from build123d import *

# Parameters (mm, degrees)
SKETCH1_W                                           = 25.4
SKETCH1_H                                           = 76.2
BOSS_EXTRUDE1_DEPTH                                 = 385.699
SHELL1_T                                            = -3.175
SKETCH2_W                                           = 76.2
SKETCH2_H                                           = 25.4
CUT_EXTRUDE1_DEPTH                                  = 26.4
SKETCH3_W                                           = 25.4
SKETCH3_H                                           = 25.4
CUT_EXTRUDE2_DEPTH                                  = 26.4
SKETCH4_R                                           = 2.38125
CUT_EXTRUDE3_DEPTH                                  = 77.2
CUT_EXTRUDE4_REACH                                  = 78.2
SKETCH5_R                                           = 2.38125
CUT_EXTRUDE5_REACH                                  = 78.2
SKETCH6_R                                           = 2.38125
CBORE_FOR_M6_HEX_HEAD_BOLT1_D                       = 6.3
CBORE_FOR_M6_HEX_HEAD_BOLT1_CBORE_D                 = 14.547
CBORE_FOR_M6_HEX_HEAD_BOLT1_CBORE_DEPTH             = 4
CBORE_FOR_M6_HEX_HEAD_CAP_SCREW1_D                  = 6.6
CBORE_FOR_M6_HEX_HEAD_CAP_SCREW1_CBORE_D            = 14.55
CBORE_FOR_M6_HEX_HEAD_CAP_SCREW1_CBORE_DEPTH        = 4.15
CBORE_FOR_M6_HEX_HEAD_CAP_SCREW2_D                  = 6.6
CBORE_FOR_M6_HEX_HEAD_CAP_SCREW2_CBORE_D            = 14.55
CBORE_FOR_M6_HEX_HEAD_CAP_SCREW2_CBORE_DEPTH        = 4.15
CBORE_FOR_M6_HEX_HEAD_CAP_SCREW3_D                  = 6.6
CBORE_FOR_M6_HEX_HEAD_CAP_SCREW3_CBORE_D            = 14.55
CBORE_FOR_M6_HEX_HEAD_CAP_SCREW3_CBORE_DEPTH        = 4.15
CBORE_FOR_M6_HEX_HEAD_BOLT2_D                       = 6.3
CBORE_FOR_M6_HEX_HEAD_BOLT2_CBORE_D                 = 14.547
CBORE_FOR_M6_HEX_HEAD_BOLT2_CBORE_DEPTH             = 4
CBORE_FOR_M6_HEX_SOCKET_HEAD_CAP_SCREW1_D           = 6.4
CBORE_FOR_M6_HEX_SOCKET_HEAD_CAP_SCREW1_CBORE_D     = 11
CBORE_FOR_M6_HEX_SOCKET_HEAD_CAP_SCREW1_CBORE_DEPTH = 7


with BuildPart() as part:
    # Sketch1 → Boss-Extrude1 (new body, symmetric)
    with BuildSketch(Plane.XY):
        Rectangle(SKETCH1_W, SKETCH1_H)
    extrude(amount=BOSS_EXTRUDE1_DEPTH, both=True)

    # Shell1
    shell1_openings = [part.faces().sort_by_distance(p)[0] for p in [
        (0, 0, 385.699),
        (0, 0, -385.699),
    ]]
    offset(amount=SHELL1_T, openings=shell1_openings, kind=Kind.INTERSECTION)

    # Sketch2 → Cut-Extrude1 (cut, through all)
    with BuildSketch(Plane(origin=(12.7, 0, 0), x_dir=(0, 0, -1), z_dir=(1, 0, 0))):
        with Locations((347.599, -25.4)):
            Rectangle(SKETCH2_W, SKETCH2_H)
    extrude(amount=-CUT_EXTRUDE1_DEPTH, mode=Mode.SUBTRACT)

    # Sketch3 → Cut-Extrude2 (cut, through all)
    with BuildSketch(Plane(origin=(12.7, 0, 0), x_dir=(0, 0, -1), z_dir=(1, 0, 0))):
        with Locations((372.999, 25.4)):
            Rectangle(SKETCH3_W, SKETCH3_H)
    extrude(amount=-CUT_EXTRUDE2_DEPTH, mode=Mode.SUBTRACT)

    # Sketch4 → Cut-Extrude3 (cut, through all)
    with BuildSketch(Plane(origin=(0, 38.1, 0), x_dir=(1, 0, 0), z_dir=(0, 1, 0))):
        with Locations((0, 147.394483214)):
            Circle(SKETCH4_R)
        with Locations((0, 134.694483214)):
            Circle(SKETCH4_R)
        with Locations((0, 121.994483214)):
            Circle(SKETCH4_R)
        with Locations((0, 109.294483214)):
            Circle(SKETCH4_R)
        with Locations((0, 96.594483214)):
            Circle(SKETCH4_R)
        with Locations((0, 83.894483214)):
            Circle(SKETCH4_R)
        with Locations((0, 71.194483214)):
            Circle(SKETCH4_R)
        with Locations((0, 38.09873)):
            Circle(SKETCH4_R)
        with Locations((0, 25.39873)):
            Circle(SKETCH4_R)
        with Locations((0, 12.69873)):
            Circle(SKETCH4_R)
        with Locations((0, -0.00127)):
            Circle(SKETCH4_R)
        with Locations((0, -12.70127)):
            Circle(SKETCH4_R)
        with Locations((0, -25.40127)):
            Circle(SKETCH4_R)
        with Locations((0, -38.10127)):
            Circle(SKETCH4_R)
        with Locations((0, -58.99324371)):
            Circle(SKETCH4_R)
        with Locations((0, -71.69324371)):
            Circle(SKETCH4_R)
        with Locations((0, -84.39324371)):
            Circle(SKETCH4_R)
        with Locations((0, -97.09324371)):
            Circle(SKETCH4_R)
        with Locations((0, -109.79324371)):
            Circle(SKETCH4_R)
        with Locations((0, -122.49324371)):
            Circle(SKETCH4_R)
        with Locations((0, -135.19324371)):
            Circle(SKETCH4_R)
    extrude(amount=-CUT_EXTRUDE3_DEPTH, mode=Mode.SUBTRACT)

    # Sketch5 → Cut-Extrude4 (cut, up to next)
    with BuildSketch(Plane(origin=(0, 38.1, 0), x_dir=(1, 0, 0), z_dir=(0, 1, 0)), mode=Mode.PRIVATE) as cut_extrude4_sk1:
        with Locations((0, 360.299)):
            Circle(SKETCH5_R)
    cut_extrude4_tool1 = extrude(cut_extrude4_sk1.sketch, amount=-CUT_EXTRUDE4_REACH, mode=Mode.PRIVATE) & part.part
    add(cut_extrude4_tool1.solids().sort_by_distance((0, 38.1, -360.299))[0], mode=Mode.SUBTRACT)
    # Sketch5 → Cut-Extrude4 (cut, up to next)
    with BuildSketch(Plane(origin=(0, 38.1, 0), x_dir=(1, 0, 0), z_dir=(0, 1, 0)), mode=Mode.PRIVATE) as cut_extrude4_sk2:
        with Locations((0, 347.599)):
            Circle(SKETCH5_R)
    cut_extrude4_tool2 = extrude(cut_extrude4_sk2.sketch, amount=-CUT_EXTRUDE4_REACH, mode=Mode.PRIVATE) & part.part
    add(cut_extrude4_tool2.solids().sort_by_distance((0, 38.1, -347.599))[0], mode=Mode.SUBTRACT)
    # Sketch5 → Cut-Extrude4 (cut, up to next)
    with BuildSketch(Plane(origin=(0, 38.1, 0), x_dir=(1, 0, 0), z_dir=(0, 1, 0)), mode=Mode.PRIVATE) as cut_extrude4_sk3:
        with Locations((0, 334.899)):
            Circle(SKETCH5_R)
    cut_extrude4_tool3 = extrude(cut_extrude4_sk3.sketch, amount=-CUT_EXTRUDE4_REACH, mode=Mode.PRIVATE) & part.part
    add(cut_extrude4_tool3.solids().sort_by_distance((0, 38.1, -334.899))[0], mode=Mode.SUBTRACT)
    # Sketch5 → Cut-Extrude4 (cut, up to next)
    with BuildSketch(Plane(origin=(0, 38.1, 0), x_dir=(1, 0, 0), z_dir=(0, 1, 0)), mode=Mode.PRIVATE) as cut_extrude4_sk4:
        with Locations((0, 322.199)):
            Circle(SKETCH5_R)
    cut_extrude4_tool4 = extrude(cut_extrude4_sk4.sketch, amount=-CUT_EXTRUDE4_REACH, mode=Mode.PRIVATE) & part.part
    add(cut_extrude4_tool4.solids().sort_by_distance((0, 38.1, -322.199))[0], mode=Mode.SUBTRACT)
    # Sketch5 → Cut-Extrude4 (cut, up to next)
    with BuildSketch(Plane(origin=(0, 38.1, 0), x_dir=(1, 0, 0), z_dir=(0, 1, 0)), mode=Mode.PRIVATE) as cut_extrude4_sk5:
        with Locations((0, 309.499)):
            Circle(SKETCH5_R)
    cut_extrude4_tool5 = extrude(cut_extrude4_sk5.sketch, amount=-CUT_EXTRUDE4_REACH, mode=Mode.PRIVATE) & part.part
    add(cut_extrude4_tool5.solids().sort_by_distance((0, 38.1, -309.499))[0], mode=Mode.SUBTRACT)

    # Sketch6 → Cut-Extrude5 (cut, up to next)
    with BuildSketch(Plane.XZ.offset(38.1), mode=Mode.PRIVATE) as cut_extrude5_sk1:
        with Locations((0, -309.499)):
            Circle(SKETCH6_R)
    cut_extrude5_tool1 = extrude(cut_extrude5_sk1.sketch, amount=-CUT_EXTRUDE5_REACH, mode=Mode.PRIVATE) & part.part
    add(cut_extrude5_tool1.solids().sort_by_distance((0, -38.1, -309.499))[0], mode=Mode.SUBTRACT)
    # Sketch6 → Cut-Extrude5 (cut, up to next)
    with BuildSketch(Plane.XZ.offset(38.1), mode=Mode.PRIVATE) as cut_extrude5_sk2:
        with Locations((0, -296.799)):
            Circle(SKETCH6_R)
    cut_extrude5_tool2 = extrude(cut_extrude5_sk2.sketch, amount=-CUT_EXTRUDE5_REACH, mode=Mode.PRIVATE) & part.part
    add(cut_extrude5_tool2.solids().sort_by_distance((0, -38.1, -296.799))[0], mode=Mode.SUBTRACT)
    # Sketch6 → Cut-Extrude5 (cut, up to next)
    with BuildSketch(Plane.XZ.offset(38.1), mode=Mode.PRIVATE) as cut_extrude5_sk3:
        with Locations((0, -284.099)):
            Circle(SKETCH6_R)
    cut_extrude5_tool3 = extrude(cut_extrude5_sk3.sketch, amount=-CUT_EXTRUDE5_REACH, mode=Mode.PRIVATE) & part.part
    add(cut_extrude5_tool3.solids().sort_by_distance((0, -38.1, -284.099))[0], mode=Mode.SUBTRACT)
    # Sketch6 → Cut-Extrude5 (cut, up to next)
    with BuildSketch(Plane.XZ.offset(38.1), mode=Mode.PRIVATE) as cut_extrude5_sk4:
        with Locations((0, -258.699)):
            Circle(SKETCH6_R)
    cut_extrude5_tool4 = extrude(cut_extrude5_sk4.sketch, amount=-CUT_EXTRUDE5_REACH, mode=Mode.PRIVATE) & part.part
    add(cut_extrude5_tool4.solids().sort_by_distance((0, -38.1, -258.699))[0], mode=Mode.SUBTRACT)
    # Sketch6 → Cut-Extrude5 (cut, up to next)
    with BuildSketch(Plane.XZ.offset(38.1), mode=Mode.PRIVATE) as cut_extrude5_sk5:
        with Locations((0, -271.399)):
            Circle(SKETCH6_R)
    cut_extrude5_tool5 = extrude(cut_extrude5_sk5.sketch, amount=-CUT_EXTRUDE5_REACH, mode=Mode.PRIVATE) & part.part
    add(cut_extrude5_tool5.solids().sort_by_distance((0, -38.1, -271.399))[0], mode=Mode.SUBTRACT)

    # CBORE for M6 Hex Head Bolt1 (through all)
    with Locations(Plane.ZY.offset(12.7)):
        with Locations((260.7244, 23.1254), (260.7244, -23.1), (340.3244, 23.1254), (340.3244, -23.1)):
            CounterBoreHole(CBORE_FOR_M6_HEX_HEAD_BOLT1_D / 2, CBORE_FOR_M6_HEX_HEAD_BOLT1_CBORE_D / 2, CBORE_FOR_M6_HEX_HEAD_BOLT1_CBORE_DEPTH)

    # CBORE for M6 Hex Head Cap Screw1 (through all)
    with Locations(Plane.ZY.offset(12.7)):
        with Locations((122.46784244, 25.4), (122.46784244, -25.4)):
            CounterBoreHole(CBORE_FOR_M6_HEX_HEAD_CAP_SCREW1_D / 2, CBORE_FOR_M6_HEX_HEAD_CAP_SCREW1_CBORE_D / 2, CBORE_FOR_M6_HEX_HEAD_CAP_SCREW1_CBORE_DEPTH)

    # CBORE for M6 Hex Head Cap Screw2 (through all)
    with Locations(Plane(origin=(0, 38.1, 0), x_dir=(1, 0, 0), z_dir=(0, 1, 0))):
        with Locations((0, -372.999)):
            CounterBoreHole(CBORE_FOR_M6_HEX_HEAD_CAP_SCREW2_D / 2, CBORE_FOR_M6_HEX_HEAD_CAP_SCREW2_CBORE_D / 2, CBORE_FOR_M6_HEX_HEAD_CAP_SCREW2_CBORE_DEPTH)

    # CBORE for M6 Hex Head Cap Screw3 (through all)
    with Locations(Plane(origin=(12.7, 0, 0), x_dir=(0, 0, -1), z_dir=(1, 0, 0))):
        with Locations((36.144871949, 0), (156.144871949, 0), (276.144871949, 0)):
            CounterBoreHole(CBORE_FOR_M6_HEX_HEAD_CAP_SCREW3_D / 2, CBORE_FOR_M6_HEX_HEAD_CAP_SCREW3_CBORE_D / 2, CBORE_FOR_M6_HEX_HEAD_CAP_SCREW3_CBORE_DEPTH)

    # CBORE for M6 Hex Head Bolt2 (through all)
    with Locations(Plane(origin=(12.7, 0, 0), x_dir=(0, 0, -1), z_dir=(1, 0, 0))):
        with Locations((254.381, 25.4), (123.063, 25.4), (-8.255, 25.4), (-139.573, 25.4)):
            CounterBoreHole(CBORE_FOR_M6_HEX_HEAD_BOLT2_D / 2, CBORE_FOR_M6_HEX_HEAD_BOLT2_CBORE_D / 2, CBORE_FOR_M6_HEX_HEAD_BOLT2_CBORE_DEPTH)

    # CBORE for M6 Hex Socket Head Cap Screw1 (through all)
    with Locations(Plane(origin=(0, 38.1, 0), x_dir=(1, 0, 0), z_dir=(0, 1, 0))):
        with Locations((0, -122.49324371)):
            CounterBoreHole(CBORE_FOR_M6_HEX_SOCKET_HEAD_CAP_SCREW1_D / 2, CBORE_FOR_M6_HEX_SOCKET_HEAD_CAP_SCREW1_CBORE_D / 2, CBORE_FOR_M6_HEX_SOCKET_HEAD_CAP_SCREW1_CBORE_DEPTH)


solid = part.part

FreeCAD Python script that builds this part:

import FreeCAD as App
import Part
import Sketcher
from FreeCAD import Vector


def faces_at(feature, points):
    """Names of the faces that lie closest to the given points."""
    faces = feature.Shape.Faces
    near = lambda p: min(range(len(faces)), key=lambda i: faces[i].distToShape(Part.Vertex(*p))[0])
    return sorted({f"Face{near(p) + 1}" for p in points})

doc = App.newDocument("Part")
body = doc.addObject("PartDesign::Body", "Body")

# Sketch on XY plane
sketch1 = body.newObject("Sketcher::SketchObject", "Sketch")
sketch1.AttachmentSupport = (doc.getObject("XY_Plane"), [""])
sketch1.MapMode = "FlatFace"
sketch1.addGeometry([
    Part.LineSegment(Vector(-12.7, 38.1, 0), Vector(-12.7, -38.1, 0)),
    Part.LineSegment(Vector(-12.7, -38.1, 0), Vector(12.7, -38.1, 0)),
    Part.LineSegment(Vector(12.7, -38.1, 0), Vector(12.7, 38.1, 0)),
    Part.LineSegment(Vector(12.7, 38.1, 0), Vector(-12.7, 38.1, 0)),
], False)
sketch1.addConstraint([
    Sketcher.Constraint("Coincident", 0, 2, 1, 1),
    Sketcher.Constraint("Coincident", 1, 2, 2, 1),
    Sketcher.Constraint("Coincident", 2, 2, 3, 1),
    Sketcher.Constraint("Coincident", 3, 2, 0, 1),
    Sketcher.Constraint("Vertical", 0),
    Sketcher.Constraint("Horizontal", 1),
    Sketcher.Constraint("Vertical", 2),
    Sketcher.Constraint("Horizontal", 3),
    Sketcher.Constraint("Symmetric", 0, 2, 2, 2, -1, 1),
    Sketcher.Constraint("DistanceX", 1, 1, 1, 2, 25.4),
    Sketcher.Constraint("DistanceY", 0, 2, 0, 1, 76.2),
])
pad1 = body.newObject("PartDesign::Pad", "Pad")
pad1.Profile = sketch1
pad1.Length = 771.398
pad1.Midplane = True
doc.recompute()

thickness = body.newObject("PartDesign::Thickness", "Thickness")
thickness.Base = (pad1, faces_at(pad1, [(0, 0, 385.699), (0, 0, -385.699)]))
thickness.Value = 3.175
thickness.Reversed = True
thickness.Join = "Intersection"

# Sketch on YZ plane
sketch2 = body.newObject("Sketcher::SketchObject", "Sketch001")
sketch2.AttachmentSupport = (doc.getObject("YZ_Plane"), [""])
sketch2.MapMode = "FlatFace"
sketch2.AttachmentOffset = App.Placement(Vector(0, 0, 12.7), App.Rotation())
sketch2.addGeometry([
    Part.LineSegment(Vector(-12.7, -309.499, 0), Vector(-38.1, -309.499, 0)),
    Part.LineSegment(Vector(-38.1, -309.499, 0), Vector(-38.1, -385.699, 0)),
    Part.LineSegment(Vector(-38.1, -385.699, 0), Vector(-12.7, -385.699, 0)),
    Part.LineSegment(Vector(-12.7, -385.699, 0), Vector(-12.7, -309.499, 0)),
], False)
sketch2.addConstraint([
    Sketcher.Constraint("Coincident", 0, 2, 1, 1),
    Sketcher.Constraint("Coincident", 1, 2, 2, 1),
    Sketcher.Constraint("Coincident", 2, 2, 3, 1),
    Sketcher.Constraint("Coincident", 3, 2, 0, 1),
    Sketcher.Constraint("Horizontal", 0),
    Sketcher.Constraint("Vertical", 1),
    Sketcher.Constraint("Horizontal", 2),
    Sketcher.Constraint("Vertical", 3),
    Sketcher.Constraint("DistanceX", 0, 2, 0, 1, 25.4),
    Sketcher.Constraint("DistanceY", 1, 2, 1, 1, 76.2),
    Sketcher.Constraint("DistanceX", 0, 2, -1, 1, 38.1),
    Sketcher.Constraint("DistanceY", 0, 2, -1, 1, 309.499),
])
pocket1 = body.newObject("PartDesign::Pocket", "Pocket")
pocket1.Profile = sketch2
pocket1.Type = "ThroughAll"

# Sketch on YZ plane
sketch3 = body.newObject("Sketcher::SketchObject", "Sketch002")
sketch3.AttachmentSupport = (doc.getObject("YZ_Plane"), [""])
sketch3.MapMode = "FlatFace"
sketch3.AttachmentOffset = App.Placement(Vector(0, 0, 12.7), App.Rotation())
sketch3.addGeometry([
    Part.LineSegment(Vector(38.1, -360.299, 0), Vector(12.7, -360.299, 0)),
    Part.LineSegment(Vector(12.7, -360.299, 0), Vector(12.7, -385.699, 0)),
    Part.LineSegment(Vector(12.7, -385.699, 0), Vector(38.1, -385.699, 0)),
    Part.LineSegment(Vector(38.1, -385.699, 0), Vector(38.1, -360.299, 0)),
], False)
sketch3.addConstraint([
    Sketcher.Constraint("Coincident", 0, 2, 1, 1),
    Sketcher.Constraint("Coincident", 1, 2, 2, 1),
    Sketcher.Constraint("Coincident", 2, 2, 3, 1),
    Sketcher.Constraint("Coincident", 3, 2, 0, 1),
    Sketcher.Constraint("Horizontal", 0),
    Sketcher.Constraint("Vertical", 1),
    Sketcher.Constraint("Horizontal", 2),
    Sketcher.Constraint("Vertical", 3),
    Sketcher.Constraint("Equal", 2, 1),
    Sketcher.Constraint("DistanceX", 0, 2, 0, 1, 25.4),
    Sketcher.Constraint("DistanceX", -1, 1, 0, 2, 12.7),
    Sketcher.Constraint("DistanceY", 0, 2, -1, 1, 360.299),
])
pocket2 = body.newObject("PartDesign::Pocket", "Pocket001")
pocket2.Profile = sketch3
pocket2.Type = "ThroughAll"

# Sketch on XZ plane
sketch4 = body.newObject("Sketcher::SketchObject", "Sketch003")
sketch4.AttachmentSupport = (doc.getObject("XZ_Plane"), [""])
sketch4.MapMode = "FlatFace"
sketch4.AttachmentOffset = App.Placement(Vector(0, 0, -38.1), App.Rotation())
sketch4.addGeometry([
    Part.Circle(Vector(0, -147.394483, 0), Vector(0, 0, 1), 2.38125),  # 0
    Part.Circle(Vector(0, -134.694483, 0), Vector(0, 0, 1), 2.38125),  # 1
    Part.Circle(Vector(0, -121.994483, 0), Vector(0, 0, 1), 2.38125),  # 2
    Part.Circle(Vector(0, -109.294483, 0), Vector(0, 0, 1), 2.38125),  # 3
    Part.Circle(Vector(0, -96.594483, 0), Vector(0, 0, 1), 2.38125),  # 4
    Part.Circle(Vector(0, -83.894483, 0), Vector(0, 0, 1), 2.38125),  # 5
    Part.Circle(Vector(0, -71.194483, 0), Vector(0, 0, 1), 2.38125),  # 6
    Part.Circle(Vector(0, -38.09873, 0), Vector(0, 0, 1), 2.38125),  # 7
    Part.Circle(Vector(0, -25.39873, 0), Vector(0, 0, 1), 2.38125),  # 8
    Part.Circle(Vector(0, -12.69873, 0), Vector(0, 0, 1), 2.38125),  # 9
    Part.Circle(Vector(0, 0.00127, 0), Vector(0, 0, 1), 2.38125),  # 10
    Part.Circle(Vector(0, 12.70127, 0), Vector(0, 0, 1), 2.38125),  # 11
    Part.Circle(Vector(0, 25.40127, 0), Vector(0, 0, 1), 2.38125),  # 12
    Part.Circle(Vector(0, 38.10127, 0), Vector(0, 0, 1), 2.38125),  # 13
    Part.Circle(Vector(0, 58.993244, 0), Vector(0, 0, 1), 2.38125),  # 14
    Part.Circle(Vector(0, 71.693244, 0), Vector(0, 0, 1), 2.38125),  # 15
    Part.Circle(Vector(0, 84.393244, 0), Vector(0, 0, 1), 2.38125),  # 16
    Part.Circle(Vector(0, 97.093244, 0), Vector(0, 0, 1), 2.38125),  # 17
    Part.Circle(Vector(0, 109.793244, 0), Vector(0, 0, 1), 2.38125),  # 18
    Part.Circle(Vector(0, 122.493244, 0), Vector(0, 0, 1), 2.38125),  # 19
    Part.Circle(Vector(0, 135.193244, 0), Vector(0, 0, 1), 2.38125),  # 20
], False)
sketch4.addConstraint([
    Sketcher.Constraint("Equal", 0, 1),
    Sketcher.Constraint("Equal", 1, 2),
    Sketcher.Constraint("Equal", 2, 3),
    Sketcher.Constraint("Equal", 3, 4),
    Sketcher.Constraint("Equal", 4, 5),
    Sketcher.Constraint("Equal", 5, 6),
    Sketcher.Constraint("Equal", 6, 7),
    Sketcher.Constraint("Equal", 7, 8),
    Sketcher.Constraint("Equal", 8, 9),
    Sketcher.Constraint("Equal", 9, 10),
    Sketcher.Constraint("Equal", 10, 11),
    Sketcher.Constraint("Equal", 11, 12),
    Sketcher.Constraint("Equal", 12, 13),
    Sketcher.Constraint("Equal", 13, 14),
    Sketcher.Constraint("Equal", 14, 15),
    Sketcher.Constraint("Equal", 15, 16),
    Sketcher.Constraint("Equal", 16, 17),
    Sketcher.Constraint("Equal", 17, 18),
    Sketcher.Constraint("Equal", 18, 19),
    Sketcher.Constraint("Equal", 19, 20),
    Sketcher.Constraint("PointOnObject", 0, 3, -2),
    Sketcher.Constraint("PointOnObject", 1, 3, -2),
    Sketcher.Constraint("PointOnObject", 2, 3, -2),
    Sketcher.Constraint("PointOnObject", 3, 3, -2),
    Sketcher.Constraint("PointOnObject", 4, 3, -2),
    Sketcher.Constraint("PointOnObject", 5, 3, -2),
    Sketcher.Constraint("PointOnObject", 6, 3, -2),
    Sketcher.Constraint("PointOnObject", 7, 3, -2),
    Sketcher.Constraint("PointOnObject", 8, 3, -2),
    Sketcher.Constraint("PointOnObject", 9, 3, -2),
    Sketcher.Constraint("PointOnObject", 10, 3, -2),
    Sketcher.Constraint("PointOnObject", 11, 3, -2),
    Sketcher.Constraint("PointOnObject", 12, 3, -2),
    Sketcher.Constraint("PointOnObject", 13, 3, -2),
    Sketcher.Constraint("PointOnObject", 14, 3, -2),
    Sketcher.Constraint("PointOnObject", 15, 3, -2),
    Sketcher.Constraint("PointOnObject", 16, 3, -2),
    Sketcher.Constraint("PointOnObject", 17, 3, -2),
    Sketcher.Constraint("PointOnObject", 18, 3, -2),
    Sketcher.Constraint("PointOnObject", 19, 3, -2),
    Sketcher.Constraint("PointOnObject", 20, 3, -2),
    Sketcher.Constraint("Diameter", 0, 4.7625),
    Sketcher.Constraint("DistanceY", 0, 3, 1, 3, 12.7),
    Sketcher.Constraint("DistanceY", 1, 3, 2, 3, 12.7),
    Sketcher.Constraint("DistanceY", 2, 3, 3, 3, 12.7),
    Sketcher.Constraint("DistanceY", 3, 3, 4, 3, 12.7),
    Sketcher.Constraint("DistanceY", 4, 3, 5, 3, 12.7),
    Sketcher.Constraint("DistanceY", 5, 3, 6, 3, 12.7),
    Sketcher.Constraint("DistanceY", 7, 3, 8, 3, 12.7),
    Sketcher.Constraint("DistanceY", 8, 3, 9, 3, 12.7),
    Sketcher.Constraint("DistanceY", 9, 3, 10, 3, 12.7),
    Sketcher.Constraint("DistanceY", 10, 3, 11, 3, 12.7),
    Sketcher.Constraint("DistanceY", 11, 3, 12, 3, 12.7),
    Sketcher.Constraint("DistanceY", 12, 3, 13, 3, 12.7),
    Sketcher.Constraint("DistanceY", 14, 3, 15, 3, 12.7),
    Sketcher.Constraint("DistanceY", 15, 3, 16, 3, 12.7),
    Sketcher.Constraint("DistanceY", 16, 3, 17, 3, 12.7),
    Sketcher.Constraint("DistanceY", 17, 3, 18, 3, 12.7),
    Sketcher.Constraint("DistanceY", 18, 3, 19, 3, 12.7),
    Sketcher.Constraint("DistanceY", 19, 3, 20, 3, 12.7),
    Sketcher.Constraint("DistanceY", 7, 3, -1, 1, 38.09873),
    Sketcher.Constraint("DistanceY", 0, 3, -1, 1, 147.394483),
    Sketcher.Constraint("DistanceY", -1, 1, 14, 3, 58.993244),
])
pocket3 = body.newObject("PartDesign::Pocket", "Pocket002")
pocket3.Profile = sketch4
pocket3.Type = "ThroughAll"
pocket3.Reversed = True

# Sketch on XZ plane
sketch5 = body.newObject("Sketcher::SketchObject", "Sketch004")
sketch5.AttachmentSupport = (doc.getObject("XZ_Plane"), [""])
sketch5.MapMode = "FlatFace"
sketch5.AttachmentOffset = App.Placement(Vector(0, 0, -38.1), App.Rotation())
sketch5.addGeometry(Part.Circle(Vector(0, -360.299, 0), Vector(0, 0, 1), 2.38125), False)
sketch5.addConstraint([
    Sketcher.Constraint("PointOnObject", 0, 3, -2),
    Sketcher.Constraint("Diameter", 0, 4.7625),
    Sketcher.Constraint("DistanceY", 0, 3, -1, 1, 360.299),
])
pocket4 = body.newObject("PartDesign::Pocket", "Pocket003")
pocket4.Profile = sketch5
pocket4.Type = "UpToFirst"
pocket4.Reversed = True

# Sketch on XZ plane
sketch6 = body.newObject("Sketcher::SketchObject", "Sketch005")
sketch6.AttachmentSupport = (doc.getObject("XZ_Plane"), [""])
sketch6.MapMode = "FlatFace"
sketch6.AttachmentOffset = App.Placement(Vector(0, 0, -38.1), App.Rotation())
sketch6.addGeometry(Part.Circle(Vector(0, -347.599, 0), Vector(0, 0, 1), 2.38125), False)
sketch6.addConstraint([
    Sketcher.Constraint("PointOnObject", 0, 3, -2),
    Sketcher.Constraint("Diameter", 0, 4.7625),
    Sketcher.Constraint("DistanceY", 0, 3, -1, 1, 347.599),
])
pocket5 = body.newObject("PartDesign::Pocket", "Pocket004")
pocket5.Profile = sketch6
pocket5.Type = "UpToFirst"
pocket5.Reversed = True

# Sketch on XZ plane
sketch7 = body.newObject("Sketcher::SketchObject", "Sketch006")
sketch7.AttachmentSupport = (doc.getObject("XZ_Plane"), [""])
sketch7.MapMode = "FlatFace"
sketch7.AttachmentOffset = App.Placement(Vector(0, 0, -38.1), App.Rotation())
sketch7.addGeometry(Part.Circle(Vector(0, -334.899, 0), Vector(0, 0, 1), 2.38125), False)
sketch7.addConstraint([
    Sketcher.Constraint("PointOnObject", 0, 3, -2),
    Sketcher.Constraint("Diameter", 0, 4.7625),
    Sketcher.Constraint("DistanceY", 0, 3, -1, 1, 334.899),
])
pocket6 = body.newObject("PartDesign::Pocket", "Pocket005")
pocket6.Profile = sketch7
pocket6.Type = "UpToFirst"
pocket6.Reversed = True

# Sketch on XZ plane
sketch8 = body.newObject("Sketcher::SketchObject", "Sketch007")
sketch8.AttachmentSupport = (doc.getObject("XZ_Plane"), [""])
sketch8.MapMode = "FlatFace"
sketch8.AttachmentOffset = App.Placement(Vector(0, 0, -38.1), App.Rotation())
sketch8.addGeometry(Part.Circle(Vector(0, -322.199, 0), Vector(0, 0, 1), 2.38125), False)
sketch8.addConstraint([
    Sketcher.Constraint("PointOnObject", 0, 3, -2),
    Sketcher.Constraint("Diameter", 0, 4.7625),
    Sketcher.Constraint("DistanceY", 0, 3, -1, 1, 322.199),
])
pocket7 = body.newObject("PartDesign::Pocket", "Pocket006")
pocket7.Profile = sketch8
pocket7.Type = "UpToFirst"
pocket7.Reversed = True

# Sketch on XZ plane
sketch9 = body.newObject("Sketcher::SketchObject", "Sketch008")
sketch9.AttachmentSupport = (doc.getObject("XZ_Plane"), [""])
sketch9.MapMode = "FlatFace"
sketch9.AttachmentOffset = App.Placement(Vector(0, 0, -38.1), App.Rotation())
sketch9.addGeometry(Part.Circle(Vector(0, -309.499, 0), Vector(0, 0, 1), 2.38125), False)
sketch9.addConstraint([
    Sketcher.Constraint("PointOnObject", 0, 3, -2),
    Sketcher.Constraint("Diameter", 0, 4.7625),
    Sketcher.Constraint("DistanceY", 0, 3, -1, 1, 309.499),
])
pocket8 = body.newObject("PartDesign::Pocket", "Pocket007")
pocket8.Profile = sketch9
pocket8.Type = "UpToFirst"
pocket8.Reversed = True

# Sketch on XZ plane
sketch10 = body.newObject("Sketcher::SketchObject", "Sketch009")
sketch10.AttachmentSupport = (doc.getObject("XZ_Plane"), [""])
sketch10.MapMode = "FlatFace"
sketch10.AttachmentOffset = App.Placement(Vector(0, 0, 38.1), App.Rotation())
sketch10.addGeometry(Part.Circle(Vector(0, -309.499, 0), Vector(0, 0, 1), 2.38125), False)
sketch10.addConstraint([
    Sketcher.Constraint("PointOnObject", 0, 3, -2),
    Sketcher.Constraint("Diameter", 0, 4.7625),
    Sketcher.Constraint("DistanceY", 0, 3, -1, 1, 309.499),
])
pocket9 = body.newObject("PartDesign::Pocket", "Pocket008")
pocket9.Profile = sketch10
pocket9.Type = "UpToFirst"

# Sketch on XZ plane
sketch11 = body.newObject("Sketcher::SketchObject", "Sketch010")
sketch11.AttachmentSupport = (doc.getObject("XZ_Plane"), [""])
sketch11.MapMode = "FlatFace"
sketch11.AttachmentOffset = App.Placement(Vector(0, 0, 38.1), App.Rotation())
sketch11.addGeometry(Part.Circle(Vector(0, -296.799, 0), Vector(0, 0, 1), 2.38125), False)
sketch11.addConstraint([
    Sketcher.Constraint("PointOnObject", 0, 3, -2),
    Sketcher.Constraint("Diameter", 0, 4.7625),
    Sketcher.Constraint("DistanceY", 0, 3, -1, 1, 296.799),
])
pocket10 = body.newObject("PartDesign::Pocket", "Pocket009")
pocket10.Profile = sketch11
pocket10.Type = "UpToFirst"

# Sketch on XZ plane
sketch12 = body.newObject("Sketcher::SketchObject", "Sketch011")
sketch12.AttachmentSupport = (doc.getObject("XZ_Plane"), [""])
sketch12.MapMode = "FlatFace"
sketch12.AttachmentOffset = App.Placement(Vector(0, 0, 38.1), App.Rotation())
sketch12.addGeometry(Part.Circle(Vector(0, -284.099, 0), Vector(0, 0, 1), 2.38125), False)
sketch12.addConstraint([
    Sketcher.Constraint("PointOnObject", 0, 3, -2),
    Sketcher.Constraint("Diameter", 0, 4.7625),
    Sketcher.Constraint("DistanceY", 0, 3, -1, 1, 284.099),
])
pocket11 = body.newObject("PartDesign::Pocket", "Pocket010")
pocket11.Profile = sketch12
pocket11.Type = "UpToFirst"

# Sketch on XZ plane
sketch13 = body.newObject("Sketcher::SketchObject", "Sketch012")
sketch13.AttachmentSupport = (doc.getObject("XZ_Plane"), [""])
sketch13.MapMode = "FlatFace"
sketch13.AttachmentOffset = App.Placement(Vector(0, 0, 38.1), App.Rotation())
sketch13.addGeometry(Part.Circle(Vector(0, -258.699, 0), Vector(0, 0, 1), 2.38125), False)
sketch13.addConstraint([
    Sketcher.Constraint("PointOnObject", 0, 3, -2),
    Sketcher.Constraint("Diameter", 0, 4.7625),
    Sketcher.Constraint("DistanceY", 0, 3, -1, 1, 258.699),
])
pocket12 = body.newObject("PartDesign::Pocket", "Pocket011")
pocket12.Profile = sketch13
pocket12.Type = "UpToFirst"

# Sketch on XZ plane
sketch14 = body.newObject("Sketcher::SketchObject", "Sketch013")
sketch14.AttachmentSupport = (doc.getObject("XZ_Plane"), [""])
sketch14.MapMode = "FlatFace"
sketch14.AttachmentOffset = App.Placement(Vector(0, 0, 38.1), App.Rotation())
sketch14.addGeometry(Part.Circle(Vector(0, -271.399, 0), Vector(0, 0, 1), 2.38125), False)
sketch14.addConstraint([
    Sketcher.Constraint("PointOnObject", 0, 3, -2),
    Sketcher.Constraint("Diameter", 0, 4.7625),
    Sketcher.Constraint("DistanceY", 0, 3, -1, 1, 271.399),
])
pocket13 = body.newObject("PartDesign::Pocket", "Pocket012")
pocket13.Profile = sketch14
pocket13.Type = "UpToFirst"

# Sketch on YZ plane
sketch15 = body.newObject("Sketcher::SketchObject", "Sketch014")
sketch15.AttachmentSupport = (doc.getObject("YZ_Plane"), [""])
sketch15.MapMode = "FlatFace"
sketch15.AttachmentOffset = App.Placement(Vector(0, 0, -12.7), App.Rotation())
sketch15.addGeometry([
    Part.Circle(Vector(23.1254, 260.7244, 0), Vector(0, 0, 1), 3.15),
    Part.Circle(Vector(-23.1, 260.7244, 0), Vector(0, 0, 1), 3.15),
    Part.Circle(Vector(23.1254, 340.3244, 0), Vector(0, 0, 1), 3.15),
    Part.Circle(Vector(-23.1, 340.3244, 0), Vector(0, 0, 1), 3.15),
], False)
sketch15.addConstraint([
    Sketcher.Constraint("Equal", 0, 1),
    Sketcher.Constraint("Equal", 1, 2),
    Sketcher.Constraint("Equal", 2, 3),
    Sketcher.Constraint("Horizontal", 0, 3, 1, 3),
    Sketcher.Constraint("Horizontal", 2, 3, 3, 3),
    Sketcher.Constraint("Vertical", 0, 3, 2, 3),
    Sketcher.Constraint("Vertical", 1, 3, 3, 3),
    Sketcher.Constraint("Diameter", 0, 6.3),
    Sketcher.Constraint("DistanceX", 1, 3, -1, 1, 23.1),
    Sketcher.Constraint("DistanceY", 0, 3, 2, 3, 79.6),
    Sketcher.Constraint("DistanceX", -1, 1, 0, 3, 23.1254),
    Sketcher.Constraint("DistanceY", -1, 1, 0, 3, 260.7244),
])
doc.recompute()
hole = body.newObject("PartDesign::Hole", "Hole")
hole.Profile = sketch15
hole.ThreadType = "None"
hole.Diameter = 6.3
hole.DepthType = "ThroughAll"
hole.HoleCutType = "Counterbore"
hole.HoleCutDiameter = 14.547
hole.HoleCutDepth = 4
hole.Reversed = True

# Sketch on YZ plane
sketch16 = body.newObject("Sketcher::SketchObject", "Sketch015")
sketch16.AttachmentSupport = (doc.getObject("YZ_Plane"), [""])
sketch16.MapMode = "FlatFace"
sketch16.AttachmentOffset = App.Placement(Vector(0, 0, -12.7), App.Rotation())
sketch16.addGeometry([
    Part.Circle(Vector(25.4, 122.467842, 0), Vector(0, 0, 1), 3.3),
    Part.Circle(Vector(-25.4, 122.467842, 0), Vector(0, 0, 1), 3.3),
], False)
sketch16.addConstraint([
    Sketcher.Constraint("Equal", 0, 1),
    Sketcher.Constraint("Symmetric", 0, 3, 1, 3, -2),
    Sketcher.Constraint("Diameter", 0, 6.6),
    Sketcher.Constraint("DistanceX", -1, 1, 0, 3, 25.4),
    Sketcher.Constraint("DistanceY", -1, 1, 0, 3, 122.467842),
])
doc.recompute()
hole2 = body.newObject("PartDesign::Hole", "Hole001")
hole2.Profile = sketch16
hole2.ThreadType = "None"
hole2.Diameter = 6.6
hole2.DepthType = "ThroughAll"
hole2.HoleCutType = "Counterbore"
hole2.HoleCutDiameter = 14.55
hole2.HoleCutDepth = 4.15
hole2.Reversed = True

# Sketch on XZ plane
sketch17 = body.newObject("Sketcher::SketchObject", "Sketch016")
sketch17.AttachmentSupport = (doc.getObject("XZ_Plane"), [""])
sketch17.MapMode = "FlatFace"
sketch17.AttachmentOffset = App.Placement(Vector(0, 0, -38.1), App.Rotation())
sketch17.addGeometry(Part.Circle(Vector(0, 372.999, 0), Vector(0, 0, 1), 3.3), False)
sketch17.addConstraint([
    Sketcher.Constraint("PointOnObject", 0, 3, -2),
    Sketcher.Constraint("Diameter", 0, 6.6),
    Sketcher.Constraint("DistanceY", -1, 1, 0, 3, 372.999),
])
doc.recompute()
hole3 = body.newObject("PartDesign::Hole", "Hole002")
hole3.Profile = sketch17
hole3.ThreadType = "None"
hole3.Diameter = 6.6
hole3.DepthType = "ThroughAll"
hole3.HoleCutType = "Counterbore"
hole3.HoleCutDiameter = 14.55
hole3.HoleCutDepth = 4.15
hole3.Reversed = True

# Sketch on YZ plane
sketch18 = body.newObject("Sketcher::SketchObject", "Sketch017")
sketch18.AttachmentSupport = (doc.getObject("YZ_Plane"), [""])
sketch18.MapMode = "FlatFace"
sketch18.AttachmentOffset = App.Placement(Vector(0, 0, 12.7), App.Rotation())
sketch18.addGeometry([
    Part.Circle(Vector(0, -36.144872, 0), Vector(0, 0, 1), 3.3),
    Part.Circle(Vector(0, -156.144872, 0), Vector(0, 0, 1), 3.3),
    Part.Circle(Vector(0, -276.144872, 0), Vector(0, 0, 1), 3.3),
], False)
sketch18.addConstraint([
    Sketcher.Constraint("Equal", 0, 1),
    Sketcher.Constraint("Equal", 1, 2),
    Sketcher.Constraint("PointOnObject", 0, 3, -2),
    Sketcher.Constraint("PointOnObject", 1, 3, -2),
    Sketcher.Constraint("PointOnObject", 2, 3, -2),
    Sketcher.Constraint("Diameter", 0, 6.6),
    Sketcher.Constraint("DistanceY", 1, 3, 0, 3, 120.0),
    Sketcher.Constraint("DistanceY", 2, 3, 1, 3, 120.0),
    Sketcher.Constraint("DistanceY", 0, 3, -1, 1, 36.144872),
])
doc.recompute()
hole4 = body.newObject("PartDesign::Hole", "Hole003")
hole4.Profile = sketch18
hole4.ThreadType = "None"
hole4.Diameter = 6.6
hole4.DepthType = "ThroughAll"
hole4.HoleCutType = "Counterbore"
hole4.HoleCutDiameter = 14.55
hole4.HoleCutDepth = 4.15

# Sketch on YZ plane
sketch19 = body.newObject("Sketcher::SketchObject", "Sketch018")
sketch19.AttachmentSupport = (doc.getObject("YZ_Plane"), [""])
sketch19.MapMode = "FlatFace"
sketch19.AttachmentOffset = App.Placement(Vector(0, 0, 12.7), App.Rotation())
sketch19.addGeometry([
    Part.Circle(Vector(25.4, -254.381, 0), Vector(0, 0, 1), 3.15),
    Part.Circle(Vector(25.4, -123.063, 0), Vector(0, 0, 1), 3.15),
    Part.Circle(Vector(25.4, 8.255, 0), Vector(0, 0, 1), 3.15),
    Part.Circle(Vector(25.4, 139.573, 0), Vector(0, 0, 1), 3.15),
], False)
sketch19.addConstraint([
    Sketcher.Constraint("Equal", 0, 1),
    Sketcher.Constraint("Equal", 1, 2),
    Sketcher.Constraint("Equal", 2, 3),
    Sketcher.Constraint("Vertical", 0, 3, 1, 3),
    Sketcher.Constraint("Vertical", 1, 3, 2, 3),
    Sketcher.Constraint("Vertical", 2, 3, 3, 3),
    Sketcher.Constraint("Diameter", 0, 6.3),
    Sketcher.Constraint("DistanceX", -1, 1, 0, 3, 25.4),
    Sketcher.Constraint("DistanceY", 0, 3, -1, 1, 254.381),
    Sketcher.Constraint("DistanceY", 1, 3, -1, 1, 123.063),
    Sketcher.Constraint("DistanceY", -1, 1, 2, 3, 8.255),
    Sketcher.Constraint("DistanceY", -1, 1, 3, 3, 139.573),
])
doc.recompute()
hole5 = body.newObject("PartDesign::Hole", "Hole004")
hole5.Profile = sketch19
hole5.ThreadType = "None"
hole5.Diameter = 6.3
hole5.DepthType = "ThroughAll"
hole5.HoleCutType = "Counterbore"
hole5.HoleCutDiameter = 14.547
hole5.HoleCutDepth = 4

# Sketch on XZ plane
sketch20 = body.newObject("Sketcher::SketchObject", "Sketch019")
sketch20.AttachmentSupport = (doc.getObject("XZ_Plane"), [""])
sketch20.MapMode = "FlatFace"
sketch20.AttachmentOffset = App.Placement(Vector(0, 0, -38.1), App.Rotation())
sketch20.addGeometry(Part.Circle(Vector(0, 122.493244, 0), Vector(0, 0, 1), 3.2), False)
sketch20.addConstraint([
    Sketcher.Constraint("PointOnObject", 0, 3, -2),
    Sketcher.Constraint("Diameter", 0, 6.4),
    Sketcher.Constraint("DistanceY", -1, 1, 0, 3, 122.493244),
])
doc.recompute()
hole6 = body.newObject("PartDesign::Hole", "Hole005")
hole6.Profile = sketch20
hole6.ThreadType = "None"
hole6.Diameter = 6.4
hole6.DepthType = "ThroughAll"
hole6.HoleCutType = "Counterbore"
hole6.HoleCutDiameter = 11
hole6.HoleCutDepth = 7
hole6.Reversed = True

doc.recompute()
